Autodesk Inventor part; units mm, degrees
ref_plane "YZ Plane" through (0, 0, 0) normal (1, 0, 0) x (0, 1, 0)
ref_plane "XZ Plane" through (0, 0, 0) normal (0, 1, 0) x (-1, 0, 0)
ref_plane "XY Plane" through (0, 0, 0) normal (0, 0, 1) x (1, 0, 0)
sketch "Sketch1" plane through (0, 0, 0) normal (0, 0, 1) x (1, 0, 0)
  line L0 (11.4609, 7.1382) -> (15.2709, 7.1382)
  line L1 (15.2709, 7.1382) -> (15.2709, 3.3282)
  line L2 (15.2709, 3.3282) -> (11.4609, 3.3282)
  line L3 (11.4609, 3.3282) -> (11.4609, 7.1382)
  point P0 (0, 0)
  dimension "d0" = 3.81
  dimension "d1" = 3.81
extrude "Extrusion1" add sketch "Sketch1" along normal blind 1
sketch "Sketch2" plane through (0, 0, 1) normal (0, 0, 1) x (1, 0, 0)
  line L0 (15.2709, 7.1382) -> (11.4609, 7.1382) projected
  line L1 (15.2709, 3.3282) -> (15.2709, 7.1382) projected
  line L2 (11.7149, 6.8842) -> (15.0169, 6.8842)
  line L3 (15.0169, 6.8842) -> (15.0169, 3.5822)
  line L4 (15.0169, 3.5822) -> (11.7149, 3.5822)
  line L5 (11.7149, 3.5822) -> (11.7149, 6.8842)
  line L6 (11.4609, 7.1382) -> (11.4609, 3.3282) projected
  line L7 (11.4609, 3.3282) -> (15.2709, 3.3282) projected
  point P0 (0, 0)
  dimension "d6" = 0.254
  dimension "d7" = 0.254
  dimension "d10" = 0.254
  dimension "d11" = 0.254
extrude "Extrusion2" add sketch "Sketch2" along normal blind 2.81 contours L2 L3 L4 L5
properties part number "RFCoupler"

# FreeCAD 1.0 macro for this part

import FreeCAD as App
import Part
import Sketcher

V = App.Vector
Q = App.Units.Quantity


def add_polygon(sketch, points):
    """Adds a closed chain of lines whose ends are joined by coincident constraints."""
    first, n = sketch.GeometryCount, len(points)
    for a, b in zip(points, points[1:] + points[:1]):
        sketch.addGeometry(Part.LineSegment(App.Vector(*a, 0), App.Vector(*b, 0)), False)
    for i in range(n):
        sketch.addConstraint(Sketcher.Constraint("Coincident", first + i, 2, first + (i + 1) % n, 1))

doc = App.newDocument("Part")
params = doc.addObject("Spreadsheet::Sheet", "Params")
for row, (alias, value) in enumerate([
    ("sketch1_width", "0.15 in"),
    ("pad1_length", "1 mm"),
    ("sketch2_width", "0.13 in"),
    ("pad2_length", "2.81 mm"),
], start=1):
    params.set(f"A{row}", alias)
    params.set(f"B{row}", "=" + value)
    params.setAlias(f"B{row}", alias)

body = doc.addObject("PartDesign::Body", "Body")

# Sketch on XY plane
sketch1 = body.newObject("Sketcher::SketchObject", "Sketch")
sketch1.AttachmentSupport = (doc.getObject("XY_Plane"), [""])
sketch1.MapMode = "FlatFace"
add_polygon(sketch1, [(15.3, 7.1), (11.5, 7.1), (11.5, 3.3), (15.3, 3.3)])  # lines 0-3
sketch1.addConstraint([
    Sketcher.Constraint("Horizontal", 0),
    Sketcher.Constraint("Vertical", 1),
    Sketcher.Constraint("Horizontal", 2),
    Sketcher.Constraint("Vertical", 3),
    Sketcher.Constraint("Equal", 2, 1),
    Sketcher.Constraint("DistanceX", 0, 2, 0, 1, Q("0.15 in")),
    Sketcher.Constraint("DistanceX", -1, 1, 0, 2, 11.461),
    Sketcher.Constraint("DistanceY", -1, 1, 0, 2, 7.1382),
])
sketch1.setExpression("Constraints[9]", "Params.sketch1_width")
pad1 = body.newObject("PartDesign::Pad", "Pad")
pad1.Profile = sketch1
pad1.setExpression("Length", "Params.pad1_length")

# Sketch on XY plane
sketch2 = body.newObject("Sketcher::SketchObject", "Sketch001")
sketch2.AttachmentSupport = (doc.getObject("XY_Plane"), [""])
sketch2.MapMode = "FlatFace"
sketch2.AttachmentOffset = App.Placement(V(0, 0, 1), App.Rotation())
add_polygon(sketch2, [(15, 6.9), (11.7, 6.9), (11.7, 3.6), (15, 3.6)])  # lines 0-3
sketch2.addConstraint([
    Sketcher.Constraint("Horizontal", 0),
    Sketcher.Constraint("Vertical", 1),
    Sketcher.Constraint("Horizontal", 2),
    Sketcher.Constraint("Vertical", 3),
    Sketcher.Constraint("Equal", 2, 1),
    Sketcher.Constraint("DistanceX", 0, 2, 0, 1, Q("0.13 in")),
    Sketcher.Constraint("DistanceX", -1, 1, 0, 2, 11.715),
    Sketcher.Constraint("DistanceY", -1, 1, 0, 2, 6.8842),
])
sketch2.setExpression("Constraints[9]", "Params.sketch2_width")
pad2 = body.newObject("PartDesign::Pad", "Pad001")
pad2.Profile = sketch2
pad2.setExpression("Length", "Params.pad2_length")

doc.recompute()
